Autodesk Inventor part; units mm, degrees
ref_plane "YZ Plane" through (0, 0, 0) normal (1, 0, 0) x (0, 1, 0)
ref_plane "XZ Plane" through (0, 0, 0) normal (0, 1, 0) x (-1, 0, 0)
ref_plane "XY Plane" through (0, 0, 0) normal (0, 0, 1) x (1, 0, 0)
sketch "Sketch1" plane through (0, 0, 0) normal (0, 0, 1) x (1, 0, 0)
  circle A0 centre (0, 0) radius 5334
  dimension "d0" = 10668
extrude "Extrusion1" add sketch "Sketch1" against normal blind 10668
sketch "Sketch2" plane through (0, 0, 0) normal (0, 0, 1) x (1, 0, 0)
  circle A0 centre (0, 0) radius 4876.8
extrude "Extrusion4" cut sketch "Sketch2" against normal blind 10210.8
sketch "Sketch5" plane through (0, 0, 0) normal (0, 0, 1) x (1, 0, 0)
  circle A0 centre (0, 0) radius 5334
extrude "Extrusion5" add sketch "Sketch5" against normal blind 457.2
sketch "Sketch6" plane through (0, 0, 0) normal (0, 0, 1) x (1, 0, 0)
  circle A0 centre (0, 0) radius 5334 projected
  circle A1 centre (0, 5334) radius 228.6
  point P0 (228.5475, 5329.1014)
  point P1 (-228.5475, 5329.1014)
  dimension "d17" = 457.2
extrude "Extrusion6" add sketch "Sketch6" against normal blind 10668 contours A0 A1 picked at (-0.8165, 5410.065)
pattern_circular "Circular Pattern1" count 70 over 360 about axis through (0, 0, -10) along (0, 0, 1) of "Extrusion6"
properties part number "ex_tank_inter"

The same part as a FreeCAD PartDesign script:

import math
import FreeCAD as App
import Part
import Sketcher
from FreeCAD import Vector
Q = App.Units.Quantity

doc = App.newDocument("Part")
params = doc.addObject("Spreadsheet::Sheet", "Params")
for row, (alias, value) in enumerate([
    ("sketch1_diameter", "420 in"),
    ("pad1_length", "420 in"),
    ("sketch2_diameter", "384 in"),
    ("pocket1_length", "402 in"),
    ("sketch3_diameter", "420 in"),
    ("pad2_length", "18 in"),
    ("sketch4_radius", "9 in"),
    ("sketch4_radius2", "210 in"),
    ("pad3_length", "420 in"),
], start=1):
    params.set(f"A{row}", alias)
    params.set(f"B{row}", "=" + value)
    params.setAlias(f"B{row}", alias)

body = doc.addObject("PartDesign::Body", "Body")

sketch1 = doc.addObject("Sketcher::SketchObject", "Sketch")
body.addObject(sketch1)
sketch1.AttachmentSupport = (doc.XY_Plane, [""])
sketch1.MapMode = "FlatFace"
sketch1.addGeometry(Part.Circle(Vector(0, 0, 0), Vector(0, 0, 1), 5334), False)
sketch1.addConstraint([
    Sketcher.Constraint("Coincident", 0, 3, -1, 1),
    Sketcher.Constraint("Diameter", 0, Q("420 in")),
])
sketch1.setExpression("Constraints[1]", "Params.sketch1_diameter")
pad1 = doc.addObject("PartDesign::Pad", "Pad")
body.addObject(pad1)
pad1.Profile = sketch1
pad1.setExpression("Length", "Params.pad1_length")
pad1.Reversed = True

sketch2 = doc.addObject("Sketcher::SketchObject", "Sketch001")
body.addObject(sketch2)
sketch2.AttachmentSupport = (doc.XY_Plane, [""])
sketch2.MapMode = "FlatFace"
sketch2.addGeometry(Part.Circle(Vector(0, 0, 0), Vector(0, 0, 1), 4877), False)
sketch2.addConstraint([
    Sketcher.Constraint("Coincident", 0, 3, -1, 1),
    Sketcher.Constraint("Diameter", 0, Q("384 in")),
])
sketch2.setExpression("Constraints[1]", "Params.sketch2_diameter")
pocket1 = doc.addObject("PartDesign::Pocket", "Pocket")
body.addObject(pocket1)
pocket1.Profile = sketch2
pocket1.setExpression("Length", "Params.pocket1_length")

sketch3 = doc.addObject("Sketcher::SketchObject", "Sketch002")
body.addObject(sketch3)
sketch3.AttachmentSupport = (doc.XY_Plane, [""])
sketch3.MapMode = "FlatFace"
sketch3.addGeometry(Part.Circle(Vector(0, 0, 0), Vector(0, 0, 1), 5334), False)
sketch3.addConstraint([
    Sketcher.Constraint("Coincident", 0, 3, -1, 1),
    Sketcher.Constraint("Diameter", 0, Q("420 in")),
])
sketch3.setExpression("Constraints[1]", "Params.sketch3_diameter")
pad2 = doc.addObject("PartDesign::Pad", "Pad001")
body.addObject(pad2)
pad2.Profile = sketch3
pad2.setExpression("Length", "Params.pad2_length")
pad2.Reversed = True

sketch4 = doc.addObject("Sketcher::SketchObject", "Sketch003")
body.addObject(sketch4)
sketch4.AttachmentSupport = (doc.XY_Plane, [""])
sketch4.MapMode = "FlatFace"
sketch4.addGeometry([
    Part.ArcOfCircle(Part.Circle(Vector(0, 0, 0), Vector(0, 0, 1), 5334), math.radians(87.54), math.radians(92.46)),
    Part.ArcOfCircle(Part.Circle(Vector(0, 5334, 0), Vector(0, 0, 1), 229), math.radians(-1), math.radians(181)),
], False)
sketch4.addConstraint([
    Sketcher.Constraint("Coincident", 0, 1, 1, 1),
    Sketcher.Constraint("Coincident", 1, 2, 0, 2),
    Sketcher.Constraint("Coincident", 0, 3, -1, 1),
    Sketcher.Constraint("PointOnObject", 1, 3, -2),
    Sketcher.Constraint("Radius", 1, Q("9 in")),
    Sketcher.Constraint("Radius", 0, Q("210 in")),
    Sketcher.Constraint("DistanceY", -1, 1, 1, 3, Q("210 in")),
])
sketch4.setExpression("Constraints[4]", "Params.sketch4_radius")
sketch4.setExpression("Constraints[5]", "Params.sketch4_radius2")
pad3 = doc.addObject("PartDesign::Pad", "Pad002")
body.addObject(pad3)
pad3.Profile = sketch4
pad3.setExpression("Length", "Params.pad3_length")
pad3.Reversed = True
doc.recompute()

polarpattern = doc.addObject("PartDesign::PolarPattern", "PolarPattern")
body.addObject(polarpattern)
polarpattern.Originals = [pad3]
polarpattern.Axis = (doc.Z_Axis, [""])
polarpattern.Angle = 360
polarpattern.Occurrences = 70
body.Tip = polarpattern

doc.recompute()
